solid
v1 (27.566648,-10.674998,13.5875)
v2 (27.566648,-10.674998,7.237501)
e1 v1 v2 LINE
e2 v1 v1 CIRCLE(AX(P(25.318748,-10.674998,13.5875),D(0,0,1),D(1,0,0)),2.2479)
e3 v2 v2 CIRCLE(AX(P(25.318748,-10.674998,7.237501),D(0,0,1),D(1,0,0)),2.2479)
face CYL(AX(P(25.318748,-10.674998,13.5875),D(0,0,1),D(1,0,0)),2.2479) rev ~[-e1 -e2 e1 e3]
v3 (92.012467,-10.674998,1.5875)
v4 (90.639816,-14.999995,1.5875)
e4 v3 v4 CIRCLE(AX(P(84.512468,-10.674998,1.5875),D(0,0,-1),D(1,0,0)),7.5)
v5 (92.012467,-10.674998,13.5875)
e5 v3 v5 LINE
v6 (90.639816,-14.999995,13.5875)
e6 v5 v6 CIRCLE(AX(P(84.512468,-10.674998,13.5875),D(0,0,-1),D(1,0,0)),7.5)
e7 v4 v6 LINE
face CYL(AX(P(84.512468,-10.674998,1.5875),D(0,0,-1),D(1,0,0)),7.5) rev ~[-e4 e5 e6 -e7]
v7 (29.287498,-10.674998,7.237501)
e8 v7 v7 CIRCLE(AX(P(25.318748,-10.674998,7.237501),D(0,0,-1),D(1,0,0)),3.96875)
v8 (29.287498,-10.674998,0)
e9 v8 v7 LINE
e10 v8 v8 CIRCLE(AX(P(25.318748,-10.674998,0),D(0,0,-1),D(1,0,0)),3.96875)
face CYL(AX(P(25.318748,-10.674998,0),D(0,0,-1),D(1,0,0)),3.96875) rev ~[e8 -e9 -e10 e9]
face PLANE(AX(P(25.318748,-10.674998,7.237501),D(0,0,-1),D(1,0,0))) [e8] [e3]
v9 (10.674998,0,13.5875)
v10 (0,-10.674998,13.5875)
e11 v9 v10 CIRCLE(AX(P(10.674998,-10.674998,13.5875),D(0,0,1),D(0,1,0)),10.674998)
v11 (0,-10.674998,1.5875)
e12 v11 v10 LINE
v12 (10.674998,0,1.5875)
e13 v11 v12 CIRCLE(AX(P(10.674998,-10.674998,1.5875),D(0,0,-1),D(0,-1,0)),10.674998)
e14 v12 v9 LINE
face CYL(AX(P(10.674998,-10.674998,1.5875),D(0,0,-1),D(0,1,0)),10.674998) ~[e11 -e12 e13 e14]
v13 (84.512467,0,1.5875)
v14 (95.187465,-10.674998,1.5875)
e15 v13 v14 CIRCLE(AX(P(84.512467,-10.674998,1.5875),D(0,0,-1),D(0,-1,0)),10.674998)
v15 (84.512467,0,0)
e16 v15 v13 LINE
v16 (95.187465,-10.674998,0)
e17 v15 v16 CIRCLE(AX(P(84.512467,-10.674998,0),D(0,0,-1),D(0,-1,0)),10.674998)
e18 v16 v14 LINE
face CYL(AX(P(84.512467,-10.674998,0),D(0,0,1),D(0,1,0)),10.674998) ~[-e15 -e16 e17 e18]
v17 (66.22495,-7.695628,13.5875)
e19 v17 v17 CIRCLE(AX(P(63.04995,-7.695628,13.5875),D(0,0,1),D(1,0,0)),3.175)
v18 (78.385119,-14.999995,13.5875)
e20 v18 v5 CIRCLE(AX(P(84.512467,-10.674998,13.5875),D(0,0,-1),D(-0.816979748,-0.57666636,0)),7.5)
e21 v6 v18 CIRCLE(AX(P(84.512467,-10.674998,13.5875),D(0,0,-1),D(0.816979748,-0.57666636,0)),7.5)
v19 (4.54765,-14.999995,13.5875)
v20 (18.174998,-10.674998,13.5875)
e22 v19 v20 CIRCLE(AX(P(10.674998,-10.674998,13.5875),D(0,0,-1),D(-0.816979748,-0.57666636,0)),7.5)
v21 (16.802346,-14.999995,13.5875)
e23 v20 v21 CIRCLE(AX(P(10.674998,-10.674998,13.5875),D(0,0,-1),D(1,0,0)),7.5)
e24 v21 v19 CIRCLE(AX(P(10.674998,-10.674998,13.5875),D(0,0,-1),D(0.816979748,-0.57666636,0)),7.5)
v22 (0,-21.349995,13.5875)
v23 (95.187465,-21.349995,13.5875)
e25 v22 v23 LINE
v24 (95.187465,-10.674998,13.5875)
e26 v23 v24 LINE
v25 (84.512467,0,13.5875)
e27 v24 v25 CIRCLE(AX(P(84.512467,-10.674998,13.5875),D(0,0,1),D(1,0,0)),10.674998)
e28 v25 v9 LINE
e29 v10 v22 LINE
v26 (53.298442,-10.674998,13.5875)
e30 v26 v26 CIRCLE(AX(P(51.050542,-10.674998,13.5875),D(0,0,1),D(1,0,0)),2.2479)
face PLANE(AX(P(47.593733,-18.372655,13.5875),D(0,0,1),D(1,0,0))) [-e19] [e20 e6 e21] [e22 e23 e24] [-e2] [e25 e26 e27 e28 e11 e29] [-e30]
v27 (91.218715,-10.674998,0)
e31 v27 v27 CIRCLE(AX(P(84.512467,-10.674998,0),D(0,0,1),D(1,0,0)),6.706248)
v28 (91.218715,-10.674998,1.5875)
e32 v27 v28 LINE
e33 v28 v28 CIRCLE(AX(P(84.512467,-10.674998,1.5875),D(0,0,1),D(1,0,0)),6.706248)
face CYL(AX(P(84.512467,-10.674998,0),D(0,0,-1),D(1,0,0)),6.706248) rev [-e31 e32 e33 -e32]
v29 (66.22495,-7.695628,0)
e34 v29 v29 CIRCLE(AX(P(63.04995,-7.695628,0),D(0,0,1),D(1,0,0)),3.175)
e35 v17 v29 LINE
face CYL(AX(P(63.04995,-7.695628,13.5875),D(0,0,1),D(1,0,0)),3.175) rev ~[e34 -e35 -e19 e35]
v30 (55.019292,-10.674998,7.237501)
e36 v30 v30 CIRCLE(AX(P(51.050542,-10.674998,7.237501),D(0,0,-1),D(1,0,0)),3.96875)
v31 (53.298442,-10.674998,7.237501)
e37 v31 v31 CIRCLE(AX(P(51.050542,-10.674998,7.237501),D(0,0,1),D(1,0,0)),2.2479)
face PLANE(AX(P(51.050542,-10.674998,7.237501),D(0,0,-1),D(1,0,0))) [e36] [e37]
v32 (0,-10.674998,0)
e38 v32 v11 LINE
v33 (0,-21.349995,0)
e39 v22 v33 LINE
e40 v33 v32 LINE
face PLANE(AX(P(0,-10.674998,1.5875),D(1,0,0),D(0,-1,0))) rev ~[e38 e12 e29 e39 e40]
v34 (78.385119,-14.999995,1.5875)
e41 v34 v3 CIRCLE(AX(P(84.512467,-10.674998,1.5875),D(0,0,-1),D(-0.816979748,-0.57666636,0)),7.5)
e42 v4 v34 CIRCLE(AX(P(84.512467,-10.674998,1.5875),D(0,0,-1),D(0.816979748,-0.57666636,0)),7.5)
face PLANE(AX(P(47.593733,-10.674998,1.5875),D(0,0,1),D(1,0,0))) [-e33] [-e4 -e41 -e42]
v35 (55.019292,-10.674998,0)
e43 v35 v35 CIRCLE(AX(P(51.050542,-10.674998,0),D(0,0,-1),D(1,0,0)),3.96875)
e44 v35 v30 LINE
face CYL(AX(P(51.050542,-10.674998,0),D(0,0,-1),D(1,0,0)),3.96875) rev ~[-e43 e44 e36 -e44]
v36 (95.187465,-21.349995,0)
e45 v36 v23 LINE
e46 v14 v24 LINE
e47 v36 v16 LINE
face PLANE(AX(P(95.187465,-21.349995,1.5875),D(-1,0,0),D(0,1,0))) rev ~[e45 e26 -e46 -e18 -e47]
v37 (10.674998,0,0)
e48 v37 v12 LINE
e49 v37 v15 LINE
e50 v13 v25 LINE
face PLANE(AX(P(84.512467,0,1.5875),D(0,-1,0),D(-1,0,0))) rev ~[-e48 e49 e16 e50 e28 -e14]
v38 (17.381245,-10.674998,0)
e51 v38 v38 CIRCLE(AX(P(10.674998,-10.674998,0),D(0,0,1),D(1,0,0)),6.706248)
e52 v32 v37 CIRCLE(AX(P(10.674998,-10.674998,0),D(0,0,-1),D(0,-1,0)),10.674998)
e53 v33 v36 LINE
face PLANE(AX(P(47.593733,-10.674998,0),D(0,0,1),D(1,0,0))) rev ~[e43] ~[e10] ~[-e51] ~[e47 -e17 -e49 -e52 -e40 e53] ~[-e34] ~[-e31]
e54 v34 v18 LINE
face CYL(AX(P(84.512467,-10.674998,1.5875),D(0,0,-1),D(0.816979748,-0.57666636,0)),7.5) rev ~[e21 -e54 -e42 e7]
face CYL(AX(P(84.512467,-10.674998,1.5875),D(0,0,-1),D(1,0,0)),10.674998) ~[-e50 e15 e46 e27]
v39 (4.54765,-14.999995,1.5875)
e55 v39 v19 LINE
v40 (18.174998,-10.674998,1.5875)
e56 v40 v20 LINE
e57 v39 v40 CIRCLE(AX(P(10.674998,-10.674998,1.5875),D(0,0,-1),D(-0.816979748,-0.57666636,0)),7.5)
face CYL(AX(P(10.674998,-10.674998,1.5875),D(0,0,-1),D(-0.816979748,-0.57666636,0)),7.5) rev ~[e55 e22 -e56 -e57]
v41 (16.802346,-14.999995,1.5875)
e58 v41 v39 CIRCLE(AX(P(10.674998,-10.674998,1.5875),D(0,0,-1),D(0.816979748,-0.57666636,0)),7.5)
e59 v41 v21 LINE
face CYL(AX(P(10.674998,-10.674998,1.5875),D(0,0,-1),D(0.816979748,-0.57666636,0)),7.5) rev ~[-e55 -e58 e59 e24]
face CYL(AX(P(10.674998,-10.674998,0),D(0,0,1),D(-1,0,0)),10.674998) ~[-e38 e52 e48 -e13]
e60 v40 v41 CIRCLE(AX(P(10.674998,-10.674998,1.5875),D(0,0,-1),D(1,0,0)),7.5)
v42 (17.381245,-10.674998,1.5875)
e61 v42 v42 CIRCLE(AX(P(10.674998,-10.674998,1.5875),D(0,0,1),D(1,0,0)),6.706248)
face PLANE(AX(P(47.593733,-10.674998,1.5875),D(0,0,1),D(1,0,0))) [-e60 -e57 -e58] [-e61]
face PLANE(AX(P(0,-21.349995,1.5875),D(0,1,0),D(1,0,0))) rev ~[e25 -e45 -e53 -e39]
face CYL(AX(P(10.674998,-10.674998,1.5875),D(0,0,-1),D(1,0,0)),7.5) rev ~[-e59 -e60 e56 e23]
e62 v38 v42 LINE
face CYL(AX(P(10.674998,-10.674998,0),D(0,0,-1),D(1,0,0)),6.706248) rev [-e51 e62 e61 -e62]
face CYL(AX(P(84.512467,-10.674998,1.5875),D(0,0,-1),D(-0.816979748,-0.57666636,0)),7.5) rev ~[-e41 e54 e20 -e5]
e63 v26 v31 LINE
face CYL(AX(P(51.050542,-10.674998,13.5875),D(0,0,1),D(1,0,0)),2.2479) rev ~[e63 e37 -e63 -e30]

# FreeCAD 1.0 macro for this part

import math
import FreeCAD as App
import Part
import Sketcher
from FreeCAD import Vector
Q = App.Units.Quantity


def edges_at(feature, points):
    """Names of the edges that pass closest to the given points."""
    edges = feature.Shape.Edges
    near = lambda p: min(range(len(edges)), key=lambda i: edges[i].distToShape(Part.Vertex(*p))[0])
    return sorted({f"Edge{near(p) + 1}" for p in points})

doc = App.newDocument("Part")
body = doc.addObject("PartDesign::Body", "Body")

sketch1 = body.newObject("Sketcher::SketchObject", "Sketch")
sketch1.AttachmentSupport = (doc.getObject("XY_Plane"), [""])
sketch1.MapMode = "FlatFace"
sketch1.addGeometry(Part.LineSegment(Vector(0, 0, 0), Vector(0, -21.349995, 0)), False)
sketch1.addGeometry(Part.LineSegment(Vector(0, -21.349995, 0), Vector(95.187465, -21.349995, 0)), False)
sketch1.addGeometry(Part.LineSegment(Vector(95.187465, -21.349995, 0), Vector(95.187465, 0, 0)), False)
sketch1.addGeometry(Part.LineSegment(Vector(95.187465, 0, 0), Vector(0, 0, 0)), False)
sketch1.addGeometry(Part.Circle(Vector(10.674998, -10.674998, 0), Vector(0, 0, 1), 6.706248), False)
sketch1.addGeometry(Part.Circle(Vector(84.512467, -10.674998, 0), Vector(0, 0, 1), 6.706248), False)
sketch1.addConstraint(Sketcher.Constraint("Coincident", 0, 2, 1, 1))
sketch1.addConstraint(Sketcher.Constraint("Coincident", 1, 2, 2, 1))
sketch1.addConstraint(Sketcher.Constraint("Coincident", 2, 2, 3, 1))
sketch1.addConstraint(Sketcher.Constraint("Coincident", 3, 2, 0, 1))
sketch1.addConstraint(Sketcher.Constraint("Vertical", 0))
sketch1.addConstraint(Sketcher.Constraint("Horizontal", 1))
sketch1.addConstraint(Sketcher.Constraint("Vertical", 2))
sketch1.addConstraint(Sketcher.Constraint("Horizontal", 3))
sketch1.addConstraint(Sketcher.Constraint("Coincident", 3, 2, -1, 1))
sketch1.addConstraint(Sketcher.Constraint("Equal", 4, 5))
sketch1.addConstraint(Sketcher.Constraint("Horizontal", 4, 3, 5, 3))
sketch1.addConstraint(Sketcher.Constraint("Diameter", 4, Q("13.412495 mm")))
sketch1.addConstraint(Sketcher.Constraint("DistanceX", 1, 1, 1, 2, Q("95.187465 mm")))
sketch1.addConstraint(Sketcher.Constraint("DistanceY", 0, 2, 0, 1, Q("21.349995 mm")))
sketch1.addConstraint(Sketcher.Constraint("DistanceX", 4, 3, 5, 3, Q("73.83747 mm")))
sketch1.addConstraint(Sketcher.Constraint("DistanceX", -1, 1, 4, 3, Q("10.674998 mm")))
sketch1.addConstraint(Sketcher.Constraint("DistanceY", 4, 3, -1, 1, Q("10.674998 mm")))
pad1 = body.newObject("PartDesign::Pad", "Pad")
pad1.Profile = sketch1
pad1.Length = Q("0.0625 in")
doc.recompute()

fillet = body.newObject("PartDesign::Fillet", "Fillet")
fillet.Base = (pad1, edges_at(pad1, [(0, 0, 0.794), (95.187, 0, 0.794)]))
fillet.Radius = 10.674998

sketch2 = body.newObject("Sketcher::SketchObject", "Sketch001")
sketch2.AttachmentSupport = (doc.getObject("XY_Plane"), [""])
sketch2.MapMode = "FlatFace"
sketch2.AttachmentOffset = App.Placement(Vector(0, 0, 0.0625 * 25.4), App.Rotation())
sketch2.addGeometry(Part.LineSegment(Vector(0, -21.349995, 0), Vector(95.187465, -21.349995, 0)), False)
sketch2.addGeometry(Part.LineSegment(Vector(95.187465, -21.349995, 0), Vector(95.187465, -10.674998, 0)), False)
sketch2.addGeometry(Part.ArcOfCircle(Part.Circle(Vector(84.512467, -10.674998, 0), Vector(0, 0, 1), 10.674998), math.radians(0), math.radians(90)), False)
sketch2.addGeometry(Part.LineSegment(Vector(84.512467, 0, 0), Vector(10.674998, 0, 0)), False)
sketch2.addGeometry(Part.ArcOfCircle(Part.Circle(Vector(10.674998, -10.674998, 0), Vector(0, 0, 1), 10.674998), math.radians(90), math.radians(180)), False)
sketch2.addGeometry(Part.LineSegment(Vector(0, -10.674998, 0), Vector(0, -21.349995, 0)), False)
sketch2.addGeometry(Part.ArcOfCircle(Part.Circle(Vector(84.512467, -10.674998, 0), Vector(0, 0, 1), 7.5), math.radians(-144.783588), math.radians(-35.216412)), False)
sketch2.addGeometry(Part.ArcOfCircle(Part.Circle(Vector(84.512467, -10.674998, 0), Vector(0, 0, 1), 7.5), math.radians(0), math.radians(215.216412)), False)
sketch2.addGeometry(Part.ArcOfCircle(Part.Circle(Vector(84.512467, -10.674998, 0), Vector(0, 0, 1), 7.5), math.radians(-35.216412), math.radians(0)), False)
sketch2.addGeometry(Part.ArcOfCircle(Part.Circle(Vector(10.674998, -10.674998, 0), Vector(0, 0, 1), 7.5), math.radians(-144.783588), math.radians(-35.216412)), False)
sketch2.addGeometry(Part.ArcOfCircle(Part.Circle(Vector(10.674998, -10.674998, 0), Vector(0, 0, 1), 7.5), math.radians(0), math.radians(215.216412)), False)
sketch2.addGeometry(Part.ArcOfCircle(Part.Circle(Vector(10.674998, -10.674998, 0), Vector(0, 0, 1), 7.5), math.radians(-35.216412), math.radians(0)), False)
sketch2.addConstraint(Sketcher.Constraint("Coincident", 0, 2, 1, 1))
sketch2.addConstraint(Sketcher.Constraint("Tangent", 1, 2, 2, 1))
sketch2.addConstraint(Sketcher.Constraint("Tangent", 2, 2, 3, 1))
sketch2.addConstraint(Sketcher.Constraint("Tangent", 3, 2, 4, 1))
sketch2.addConstraint(Sketcher.Constraint("Tangent", 4, 2, 5, 1))
sketch2.addConstraint(Sketcher.Constraint("Coincident", 5, 2, 0, 1))
sketch2.addConstraint(Sketcher.Constraint("Tangent", 6, 1, 7, 2))
sketch2.addConstraint(Sketcher.Constraint("Tangent", 7, 1, 8, 2))
sketch2.addConstraint(Sketcher.Constraint("Tangent", 8, 1, 6, 2))
sketch2.addConstraint(Sketcher.Constraint("Tangent", 9, 1, 10, 2))
sketch2.addConstraint(Sketcher.Constraint("Tangent", 10, 1, 11, 2))
sketch2.addConstraint(Sketcher.Constraint("Tangent", 11, 1, 9, 2))
sketch2.addConstraint(Sketcher.Constraint("Horizontal", 0))
sketch2.addConstraint(Sketcher.Constraint("Vertical", 1))
sketch2.addConstraint(Sketcher.Constraint("Horizontal", 3))
sketch2.addConstraint(Sketcher.Constraint("Vertical", 5))
sketch2.addConstraint(Sketcher.Constraint("Coincident", 6, 3, 2, 3))
sketch2.addConstraint(Sketcher.Constraint("Coincident", 9, 3, 4, 3))
sketch2.addConstraint(Sketcher.Constraint("Equal", 2, 4))
sketch2.addConstraint(Sketcher.Constraint("Equal", 8, 9))
sketch2.addConstraint(Sketcher.Constraint("PointOnObject", 2, 2, -1))
sketch2.addConstraint(Sketcher.Constraint("PointOnObject", 4, 2, -2))
sketch2.addConstraint(Sketcher.Constraint("Horizontal", 4, 2, 7, 1))
sketch2.addConstraint(Sketcher.Constraint("Horizontal", 6, 1, 8, 1))
sketch2.addConstraint(Sketcher.Constraint("Horizontal", 8, 1, 9, 1))
sketch2.addConstraint(Sketcher.Constraint("Horizontal", 7, 1, 10, 1))
sketch2.addConstraint(Sketcher.Constraint("Horizontal", 9, 1, 11, 1))
sketch2.addConstraint(Sketcher.Constraint("Radius", 6, Q("7.5 mm")))
sketch2.addConstraint(Sketcher.Constraint("DistanceX", 7, 1, 1, 2, Q("0.1249999 in")))
sketch2.addConstraint(Sketcher.Constraint("DistanceX", 3, 2, 3, 1, Q("73.83747 mm")))
sketch2.addConstraint(Sketcher.Constraint("DistanceY", 1, 1, 1, 2, Q("10.674998 mm")))
sketch2.addConstraint(Sketcher.Constraint("DistanceX", -1, 1, 6, 1, Q("78.385119 mm")))
pad2 = body.newObject("PartDesign::Pad", "Pad001")
pad2.Profile = sketch2
pad2.Length = 12

sketch3 = body.newObject("Sketcher::SketchObject", "Sketch002")
sketch3.AttachmentSupport = (doc.getObject("XY_Plane"), [""])
sketch3.MapMode = "FlatFace"
sketch3.AttachmentOffset = App.Placement(Vector(0, 0, 13.5875), App.Rotation())
sketch3.addGeometry(Part.Circle(Vector(51.050542, -10.674998, 0), Vector(0, 0, 1), 2.2479), False)
sketch3.addGeometry(Part.Circle(Vector(63.04995, -7.695628, 0), Vector(0, 0, 1), 3.175), False)
sketch3.addGeometry(Part.Circle(Vector(25.318748, -10.674998, 0), Vector(0, 0, 1), 2.2479), False)
sketch3.addConstraint(Sketcher.Constraint("Equal", 0, 2))
sketch3.addConstraint(Sketcher.Constraint("Horizontal", 0, 3, 2, 3))
sketch3.addConstraint(Sketcher.Constraint("Diameter", 1, Q("0.25 in")))
sketch3.addConstraint(Sketcher.Constraint("Diameter", 0, Q("0.177 in")))
sketch3.addConstraint(Sketcher.Constraint("DistanceX", -1, 1, 1, 3, Q("63.04995 mm")))
sketch3.addConstraint(Sketcher.Constraint("DistanceY", 1, 3, -1, 1, Q("7.695628 mm")))
sketch3.addConstraint(Sketcher.Constraint("DistanceY", 0, 3, 1, 3, Q("2.979369 mm")))
sketch3.addConstraint(Sketcher.Constraint("DistanceX", -1, 1, 0, 3, Q("51.050542 mm")))
sketch3.addConstraint(Sketcher.Constraint("DistanceX", -1, 1, 2, 3, Q("25.318748 mm")))
pocket1 = body.newObject("PartDesign::Pocket", "Pocket")
pocket1.Profile = sketch3
pocket1.Type = "ThroughAll"

sketch4 = body.newObject("Sketcher::SketchObject", "Sketch003")
sketch4.AttachmentSupport = (doc.getObject("XY_Plane"), [""])
sketch4.MapMode = "FlatFace"
sketch4.addGeometry(Part.Circle(Vector(51.050542, -10.674998, 0), Vector(0, 0, 1), 3.96875), False)
sketch4.addGeometry(Part.Circle(Vector(25.318748, -10.674998, 0), Vector(0, 0, 1), 3.96875), False)
sketch4.addConstraint(Sketcher.Constraint("Equal", 0, 1))
sketch4.addConstraint(Sketcher.Constraint("Horizontal", 0, 3, 1, 3))
sketch4.addConstraint(Sketcher.Constraint("Diameter", 0, Q("0.3125 in")))
sketch4.addConstraint(Sketcher.Constraint("DistanceX", -1, 1, 0, 3, Q("51.050542 mm")))
sketch4.addConstraint(Sketcher.Constraint("DistanceY", 0, 3, -1, 1, Q("10.674998 mm")))
sketch4.addConstraint(Sketcher.Constraint("DistanceX", -1, 1, 1, 3, Q("25.318748 mm")))
pocket2 = body.newObject("PartDesign::Pocket", "Pocket001")
pocket2.Profile = sketch4
pocket2.Length = 7.237501
pocket2.Reversed = True

doc.recompute()
